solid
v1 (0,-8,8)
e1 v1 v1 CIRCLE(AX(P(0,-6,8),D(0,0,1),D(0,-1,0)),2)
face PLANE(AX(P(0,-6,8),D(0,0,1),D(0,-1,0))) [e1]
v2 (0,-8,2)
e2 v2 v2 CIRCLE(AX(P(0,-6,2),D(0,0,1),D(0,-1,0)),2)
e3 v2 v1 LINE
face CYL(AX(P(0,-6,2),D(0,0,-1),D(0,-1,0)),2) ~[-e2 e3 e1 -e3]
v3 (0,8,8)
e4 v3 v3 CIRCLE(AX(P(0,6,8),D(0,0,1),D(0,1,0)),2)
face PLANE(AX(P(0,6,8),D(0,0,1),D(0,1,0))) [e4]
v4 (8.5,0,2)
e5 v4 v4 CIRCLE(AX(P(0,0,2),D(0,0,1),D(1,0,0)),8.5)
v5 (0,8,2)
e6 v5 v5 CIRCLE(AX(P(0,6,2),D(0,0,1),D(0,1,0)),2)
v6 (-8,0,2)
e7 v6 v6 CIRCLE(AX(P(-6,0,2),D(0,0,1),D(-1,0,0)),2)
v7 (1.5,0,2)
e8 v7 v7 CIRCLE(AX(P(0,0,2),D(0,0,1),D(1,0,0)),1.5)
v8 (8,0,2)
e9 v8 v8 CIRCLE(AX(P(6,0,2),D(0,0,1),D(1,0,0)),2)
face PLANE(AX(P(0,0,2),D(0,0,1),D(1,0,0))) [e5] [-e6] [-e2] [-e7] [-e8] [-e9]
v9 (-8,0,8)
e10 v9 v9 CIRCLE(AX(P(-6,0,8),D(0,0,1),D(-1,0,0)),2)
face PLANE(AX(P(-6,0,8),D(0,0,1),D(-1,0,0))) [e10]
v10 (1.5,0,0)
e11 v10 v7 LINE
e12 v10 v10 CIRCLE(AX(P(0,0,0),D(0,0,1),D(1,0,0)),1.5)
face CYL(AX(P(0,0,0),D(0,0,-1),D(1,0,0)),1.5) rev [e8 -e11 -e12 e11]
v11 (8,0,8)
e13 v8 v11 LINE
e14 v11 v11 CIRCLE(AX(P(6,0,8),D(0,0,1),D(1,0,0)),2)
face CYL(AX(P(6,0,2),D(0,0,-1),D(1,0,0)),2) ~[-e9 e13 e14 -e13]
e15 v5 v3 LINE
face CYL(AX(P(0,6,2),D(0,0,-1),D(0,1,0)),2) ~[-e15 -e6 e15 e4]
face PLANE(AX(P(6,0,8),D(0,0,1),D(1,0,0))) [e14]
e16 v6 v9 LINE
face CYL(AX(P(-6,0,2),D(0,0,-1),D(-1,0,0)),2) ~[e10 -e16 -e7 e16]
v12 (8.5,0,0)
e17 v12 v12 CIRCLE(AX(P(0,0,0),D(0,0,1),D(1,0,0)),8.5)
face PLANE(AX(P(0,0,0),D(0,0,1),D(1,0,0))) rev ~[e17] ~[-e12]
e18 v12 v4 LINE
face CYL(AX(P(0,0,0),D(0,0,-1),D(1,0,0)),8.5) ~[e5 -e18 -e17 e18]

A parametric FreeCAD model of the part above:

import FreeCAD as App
import Part
import Sketcher
from FreeCAD import Vector
Q = App.Units.Quantity

doc = App.newDocument("Part")
body = doc.addObject("PartDesign::Body", "Body")

# Sketch on XY plane
sketch1 = body.newObject("Sketcher::SketchObject", "Sketch")
sketch1.AttachmentSupport = (doc.getObject("XY_Plane"), [""])
sketch1.MapMode = "FlatFace"
sketch1.addGeometry([
    Part.Circle(Vector(0, 0, 0), Vector(0, 0, 1), 8.5),
    Part.Circle(Vector(0, 0, 0), Vector(0, 0, 1), 1.5),
], False)
sketch1.addConstraint([
    Sketcher.Constraint("Coincident", 0, 3, -1, 1),
    Sketcher.Constraint("Coincident", 1, 3, -1, 1),
    Sketcher.Constraint("Diameter", 0, Q("17 mm")),
    Sketcher.Constraint("Diameter", 1, Q("3 mm")),
])
pad1 = body.newObject("PartDesign::Pad", "Pad")
pad1.Profile = sketch1
pad1.Length = 2

# Sketch on XY plane
sketch2 = body.newObject("Sketcher::SketchObject", "Sketch001")
sketch2.AttachmentSupport = (doc.getObject("XY_Plane"), [""])
sketch2.MapMode = "FlatFace"
sketch2.AttachmentOffset = App.Placement(Vector(0, 0, 2), App.Rotation())
sketch2.addGeometry(Part.Circle(Vector(6, 0, 0), Vector(0, 0, 1), 2), False)
sketch2.addConstraint([
    Sketcher.Constraint("PointOnObject", 0, 3, -1),
    Sketcher.Constraint("Diameter", 0, Q("4 mm")),
    Sketcher.Constraint("DistanceX", -1, 1, 0, 3, Q("6 mm")),
])
pad2 = body.newObject("PartDesign::Pad", "Pad001")
pad2.Profile = sketch2
pad2.Length = 6
doc.recompute()

polarpattern = body.newObject("PartDesign::PolarPattern", "PolarPattern")
polarpattern.Originals = [pad2]
polarpattern.Axis = (doc.getObject("Z_Axis"), [""])
polarpattern.Angle = 360
polarpattern.Occurrences = 4
body.Tip = polarpattern

doc.recompute()
